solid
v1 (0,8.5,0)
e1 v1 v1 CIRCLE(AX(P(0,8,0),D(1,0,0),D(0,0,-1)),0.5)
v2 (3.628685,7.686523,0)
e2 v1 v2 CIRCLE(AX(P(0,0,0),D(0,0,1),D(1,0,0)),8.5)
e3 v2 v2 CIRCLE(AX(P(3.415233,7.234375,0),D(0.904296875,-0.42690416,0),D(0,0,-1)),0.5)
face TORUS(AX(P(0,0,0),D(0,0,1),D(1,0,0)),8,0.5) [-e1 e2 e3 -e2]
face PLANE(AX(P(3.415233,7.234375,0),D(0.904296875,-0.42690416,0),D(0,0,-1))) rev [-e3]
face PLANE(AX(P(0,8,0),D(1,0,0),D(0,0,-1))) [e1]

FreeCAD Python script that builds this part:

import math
import FreeCAD as App
import Part
import Sketcher
Q = App.Units.Quantity

doc = App.newDocument("Part")
body = doc.addObject("PartDesign::Body", "Body")

sketch1 = body.newObject("Sketcher::SketchObject", "Sketch")
sketch1.AttachmentSupport = (doc.getObject("YZ_Plane"), [""])
sketch1.MapMode = "FlatFace"
sketch1.addGeometry(Part.Circle(App.Vector(8, 0, 0), App.Vector(0, 0, 1), 0.5), False)
sketch1.addConstraint([
    Sketcher.Constraint("PointOnObject", 0, 3, -1),
    Sketcher.Constraint("Diameter", 0, Q("1 mm")),
    Sketcher.Constraint("DistanceX", -1, 1, 0, 3, Q("8 mm")),
])

sketch2 = body.newObject("Sketcher::SketchObject", "Sketch001")
sketch2.AttachmentSupport = (doc.getObject("XY_Plane"), [""])
sketch2.MapMode = "FlatFace"
sketch2.addGeometry(Part.ArcOfCircle(Part.Circle(App.Vector(0, 0, 0), App.Vector(0, 0, 1), 8), math.radians(90), math.radians(425)), False)
sketch2.addConstraint([
    Sketcher.Constraint("Coincident", 0, 3, -1, 1),
    Sketcher.Constraint("PointOnObject", 0, 1, -2),
    Sketcher.Constraint("Radius", 0, Q("8 mm")),
    Sketcher.Constraint("DistanceX", -1, 1, 0, 2, Q("3.415233 mm")),
])
doc.recompute()

additivepipe = body.newObject("PartDesign::AdditivePipe", "AdditivePipe")
additivepipe.Profile = sketch1
additivepipe.Spine = (sketch2, ["Edge1"])

doc.recompute()
